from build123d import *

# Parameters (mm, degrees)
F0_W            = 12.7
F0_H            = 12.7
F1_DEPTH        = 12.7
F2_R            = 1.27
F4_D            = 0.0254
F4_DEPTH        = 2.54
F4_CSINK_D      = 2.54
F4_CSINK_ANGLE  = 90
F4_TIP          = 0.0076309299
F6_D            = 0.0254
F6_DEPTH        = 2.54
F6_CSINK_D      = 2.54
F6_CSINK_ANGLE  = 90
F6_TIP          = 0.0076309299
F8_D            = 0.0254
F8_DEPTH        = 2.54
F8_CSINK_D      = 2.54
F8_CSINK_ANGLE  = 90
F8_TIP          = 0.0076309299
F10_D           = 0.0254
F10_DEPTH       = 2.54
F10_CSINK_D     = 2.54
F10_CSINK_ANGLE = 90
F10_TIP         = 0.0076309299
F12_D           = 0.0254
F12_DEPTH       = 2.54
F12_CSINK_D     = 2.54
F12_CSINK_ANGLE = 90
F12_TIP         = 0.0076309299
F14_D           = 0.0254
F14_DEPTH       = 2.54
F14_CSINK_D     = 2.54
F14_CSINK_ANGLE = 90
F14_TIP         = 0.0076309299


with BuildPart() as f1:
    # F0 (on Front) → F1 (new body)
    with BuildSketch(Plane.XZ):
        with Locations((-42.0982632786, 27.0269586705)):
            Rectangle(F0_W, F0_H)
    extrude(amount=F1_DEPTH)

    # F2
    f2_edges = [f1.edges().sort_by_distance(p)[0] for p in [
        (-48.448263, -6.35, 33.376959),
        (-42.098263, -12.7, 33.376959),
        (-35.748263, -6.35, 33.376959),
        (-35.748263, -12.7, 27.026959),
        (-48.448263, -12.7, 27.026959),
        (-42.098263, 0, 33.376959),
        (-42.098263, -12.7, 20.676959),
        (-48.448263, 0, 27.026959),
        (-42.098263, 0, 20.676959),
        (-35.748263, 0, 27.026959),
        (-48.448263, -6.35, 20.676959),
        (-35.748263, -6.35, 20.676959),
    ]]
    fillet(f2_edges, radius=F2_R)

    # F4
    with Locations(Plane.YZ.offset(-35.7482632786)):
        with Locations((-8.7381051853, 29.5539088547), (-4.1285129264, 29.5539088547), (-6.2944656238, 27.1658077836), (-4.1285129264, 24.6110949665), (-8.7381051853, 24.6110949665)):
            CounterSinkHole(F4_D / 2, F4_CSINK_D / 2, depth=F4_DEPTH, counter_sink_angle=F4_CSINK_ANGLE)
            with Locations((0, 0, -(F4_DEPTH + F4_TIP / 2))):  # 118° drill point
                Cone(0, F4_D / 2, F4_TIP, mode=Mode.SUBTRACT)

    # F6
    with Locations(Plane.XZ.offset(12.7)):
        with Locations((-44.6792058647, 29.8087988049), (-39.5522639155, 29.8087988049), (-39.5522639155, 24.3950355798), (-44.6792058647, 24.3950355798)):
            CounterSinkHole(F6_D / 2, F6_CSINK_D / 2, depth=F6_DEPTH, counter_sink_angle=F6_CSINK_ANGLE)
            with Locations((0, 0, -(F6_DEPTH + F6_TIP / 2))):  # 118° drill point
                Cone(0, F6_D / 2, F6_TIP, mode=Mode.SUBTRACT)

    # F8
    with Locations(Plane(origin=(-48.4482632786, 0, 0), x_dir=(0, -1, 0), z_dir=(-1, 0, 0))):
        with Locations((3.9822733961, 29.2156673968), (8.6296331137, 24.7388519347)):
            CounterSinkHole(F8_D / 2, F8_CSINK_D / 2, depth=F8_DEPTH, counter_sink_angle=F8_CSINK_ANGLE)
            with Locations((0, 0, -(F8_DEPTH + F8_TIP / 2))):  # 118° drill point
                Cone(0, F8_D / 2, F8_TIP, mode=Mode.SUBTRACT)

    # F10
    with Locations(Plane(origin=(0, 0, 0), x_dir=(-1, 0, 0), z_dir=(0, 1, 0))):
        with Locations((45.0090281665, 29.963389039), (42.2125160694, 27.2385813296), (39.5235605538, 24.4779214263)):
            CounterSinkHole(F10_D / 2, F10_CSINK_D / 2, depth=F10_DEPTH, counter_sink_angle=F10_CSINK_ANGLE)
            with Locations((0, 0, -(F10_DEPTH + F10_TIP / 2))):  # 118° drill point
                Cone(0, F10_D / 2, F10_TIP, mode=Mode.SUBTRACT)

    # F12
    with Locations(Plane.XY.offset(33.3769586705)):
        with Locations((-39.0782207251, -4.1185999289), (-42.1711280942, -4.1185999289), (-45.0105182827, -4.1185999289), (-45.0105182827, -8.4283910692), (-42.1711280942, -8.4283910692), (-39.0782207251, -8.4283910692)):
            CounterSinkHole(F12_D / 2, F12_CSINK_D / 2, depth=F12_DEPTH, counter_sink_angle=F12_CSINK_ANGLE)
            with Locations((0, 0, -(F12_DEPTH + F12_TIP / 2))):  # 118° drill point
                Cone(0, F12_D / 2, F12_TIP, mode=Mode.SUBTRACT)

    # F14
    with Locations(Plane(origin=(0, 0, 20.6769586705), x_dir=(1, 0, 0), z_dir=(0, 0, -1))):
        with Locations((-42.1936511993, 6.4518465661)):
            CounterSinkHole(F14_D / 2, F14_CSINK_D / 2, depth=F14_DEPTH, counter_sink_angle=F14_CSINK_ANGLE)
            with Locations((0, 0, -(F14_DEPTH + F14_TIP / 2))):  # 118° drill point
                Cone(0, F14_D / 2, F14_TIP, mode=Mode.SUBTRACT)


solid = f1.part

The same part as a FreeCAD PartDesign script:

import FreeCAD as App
import Part
import Sketcher
Q = App.Units.Quantity


def add_polygon(sketch, points):
    """Adds a closed chain of lines whose ends are joined by coincident constraints."""
    first, n = sketch.GeometryCount, len(points)
    for a, b in zip(points, points[1:] + points[:1]):
        sketch.addGeometry(Part.LineSegment(App.Vector(*a, 0), App.Vector(*b, 0)), False)
    for i in range(n):
        sketch.addConstraint(Sketcher.Constraint("Coincident", first + i, 2, first + (i + 1) % n, 1))

doc = App.newDocument("Part")
body = doc.addObject("PartDesign::Body", "Body")

# Sketch on XZ plane
sketch1 = doc.addObject("Sketcher::SketchObject", "Sketch")
body.addObject(sketch1)
sketch1.AttachmentSupport = (doc.XZ_Plane, [""])
sketch1.MapMode = "FlatFace"
add_polygon(sketch1, [(-48, 33), (-48, 21), (-36, 21), (-36, 33)])  # lines 0-3
sketch1.addConstraint([
    Sketcher.Constraint("Vertical", 0),
    Sketcher.Constraint("Horizontal", 1),
    Sketcher.Constraint("Vertical", 2),
    Sketcher.Constraint("Horizontal", 3),
    Sketcher.Constraint("Equal", 3, 0),
    Sketcher.Constraint("DistanceX", 1, 1, 1, 2, Q("0.5 in")),
    Sketcher.Constraint("DistanceY", -1, 1, 0, 2, Q("20.676959 mm")),
    Sketcher.Constraint("DistanceX", 0, 2, -1, 1, Q("48.448263 mm")),
])
pad1 = doc.addObject("PartDesign::Pad", "Pad")
body.addObject(pad1)
pad1.Profile = sketch1
pad1.Length = Q("0.5 in")
doc.recompute()

fillet = doc.addObject("PartDesign::Fillet", "Fillet")
body.addObject(fillet)
fillet.Base = (pad1, ["Edge1"])
fillet.UseAllEdges = True
fillet.Radius = Q("0.05 in")

# Sketch on YZ plane
sketch2 = doc.addObject("Sketcher::SketchObject", "Sketch001")
body.addObject(sketch2)
sketch2.AttachmentSupport = (doc.YZ_Plane, [""])
sketch2.MapMode = "FlatFace"
sketch2.AttachmentOffset = App.Placement(App.Vector(0, 0, -35.748263), App.Rotation())
sketch2.addGeometry([
    Part.Circle(App.Vector(-8.738, 29.554, 0), App.Vector(0, 0, 1), 0.013),  # 0
    Part.Circle(App.Vector(-4.129, 29.554, 0), App.Vector(0, 0, 1), 0.013),  # 1
    Part.Circle(App.Vector(-6.294, 27.166, 0), App.Vector(0, 0, 1), 0.013),  # 2
    Part.Circle(App.Vector(-4.129, 24.611, 0), App.Vector(0, 0, 1), 0.013),  # 3
    Part.Circle(App.Vector(-8.738, 24.611, 0), App.Vector(0, 0, 1), 0.013),  # 4
], False)
sketch2.addConstraint([
    Sketcher.Constraint("Equal", 0, 1),
    Sketcher.Constraint("Equal", 1, 2),
    Sketcher.Constraint("Equal", 2, 3),
    Sketcher.Constraint("Equal", 3, 4),
    Sketcher.Constraint("Horizontal", 0, 3, 1, 3),
    Sketcher.Constraint("Horizontal", 3, 3, 4, 3),
    Sketcher.Constraint("Vertical", 1, 3, 3, 3),
    Sketcher.Constraint("Vertical", 0, 3, 4, 3),
    Sketcher.Constraint("Diameter", 0, Q("0.001 in")),
    Sketcher.Constraint("DistanceY", 2, 3, 1, 3, Q("2.388101 mm")),
    Sketcher.Constraint("DistanceY", -1, 1, 0, 3, Q("29.553909 mm")),
    Sketcher.Constraint("DistanceX", 0, 3, 2, 3, Q("2.44364 mm")),
    Sketcher.Constraint("DistanceX", 0, 3, -1, 1, Q("8.738105 mm")),
    Sketcher.Constraint("DistanceX", 1, 3, -1, 1, Q("4.128513 mm")),
    Sketcher.Constraint("DistanceY", -1, 1, 3, 3, Q("24.611095 mm")),
])
doc.recompute()
hole = doc.addObject("PartDesign::Hole", "Hole")
body.addObject(hole)
hole.Profile = sketch2
hole.ThreadType = "None"
hole.Diameter = Q("0.001 in")
hole.DepthType = "Dimension"
hole.Depth = Q("0.1 in")
hole.DrillPoint = "Angled"
hole.DrillPointAngle = 118
hole.HoleCutType = "Countersink"
hole.HoleCutDiameter = Q("0.1 in")
hole.HoleCutCountersinkAngle = 90

# Sketch on XZ plane
sketch3 = doc.addObject("Sketcher::SketchObject", "Sketch002")
body.addObject(sketch3)
sketch3.AttachmentSupport = (doc.XZ_Plane, [""])
sketch3.MapMode = "FlatFace"
sketch3.AttachmentOffset = App.Placement(App.Vector(0, 0, 0.5 * 25.4), App.Rotation())
sketch3.addGeometry([
    Part.Circle(App.Vector(-44.679, 29.809, 0), App.Vector(0, 0, 1), 0.013),
    Part.Circle(App.Vector(-39.552, 29.809, 0), App.Vector(0, 0, 1), 0.013),
    Part.Circle(App.Vector(-39.552, 24.395, 0), App.Vector(0, 0, 1), 0.013),
    Part.Circle(App.Vector(-44.679, 24.395, 0), App.Vector(0, 0, 1), 0.013),
], False)
sketch3.addConstraint([
    Sketcher.Constraint("Equal", 0, 1),
    Sketcher.Constraint("Equal", 1, 2),
    Sketcher.Constraint("Equal", 2, 3),
    Sketcher.Constraint("Horizontal", 0, 3, 1, 3),
    Sketcher.Constraint("Horizontal", 2, 3, 3, 3),
    Sketcher.Constraint("Vertical", 1, 3, 2, 3),
    Sketcher.Constraint("Vertical", 0, 3, 3, 3),
    Sketcher.Constraint("Diameter", 0, Q("0.001 in")),
    Sketcher.Constraint("DistanceY", -1, 1, 0, 3, Q("29.808799 mm")),
    Sketcher.Constraint("DistanceX", 0, 3, 1, 3, Q("5.126942 mm")),
    Sketcher.Constraint("DistanceX", 0, 3, -1, 1, Q("44.679206 mm")),
    Sketcher.Constraint("DistanceY", -1, 1, 2, 3, Q("24.395036 mm")),
])
doc.recompute()
hole2 = doc.addObject("PartDesign::Hole", "Hole001")
body.addObject(hole2)
hole2.Profile = sketch3
hole2.ThreadType = "None"
hole2.Diameter = Q("0.001 in")
hole2.DepthType = "Dimension"
hole2.Depth = Q("0.1 in")
hole2.DrillPoint = "Angled"
hole2.DrillPointAngle = 118
hole2.HoleCutType = "Countersink"
hole2.HoleCutDiameter = Q("0.1 in")
hole2.HoleCutCountersinkAngle = 90

# Sketch on YZ plane
sketch4 = doc.addObject("Sketcher::SketchObject", "Sketch003")
body.addObject(sketch4)
sketch4.AttachmentSupport = (doc.YZ_Plane, [""])
sketch4.MapMode = "FlatFace"
sketch4.AttachmentOffset = App.Placement(App.Vector(0, 0, -48.448263), App.Rotation())
sketch4.addGeometry([
    Part.Circle(App.Vector(-3.982, 29.216, 0), App.Vector(0, 0, 1), 0.013),
    Part.Circle(App.Vector(-8.63, 24.739, 0), App.Vector(0, 0, 1), 0.013),
], False)
sketch4.addConstraint([
    Sketcher.Constraint("Equal", 0, 1),
    Sketcher.Constraint("Diameter", 0, Q("0.001 in")),
    Sketcher.Constraint("DistanceY", -1, 1, 1, 3, Q("24.738852 mm")),
    Sketcher.Constraint("DistanceX", 1, 3, 0, 3, Q("4.64736 mm")),
    Sketcher.Constraint("DistanceX", 0, 3, -1, 1, Q("3.982273 mm")),
    Sketcher.Constraint("DistanceY", -1, 1, 0, 3, Q("29.215667 mm")),
])
doc.recompute()
hole3 = doc.addObject("PartDesign::Hole", "Hole002")
body.addObject(hole3)
hole3.Profile = sketch4
hole3.ThreadType = "None"
hole3.Diameter = Q("0.001 in")
hole3.DepthType = "Dimension"
hole3.Depth = Q("0.1 in")
hole3.DrillPoint = "Angled"
hole3.DrillPointAngle = 118
hole3.HoleCutType = "Countersink"
hole3.HoleCutDiameter = Q("0.1 in")
hole3.HoleCutCountersinkAngle = 90
hole3.Reversed = True

# Sketch on XZ plane
sketch5 = doc.addObject("Sketcher::SketchObject", "Sketch004")
body.addObject(sketch5)
sketch5.AttachmentSupport = (doc.XZ_Plane, [""])
sketch5.MapMode = "FlatFace"
sketch5.addGeometry([
    Part.Circle(App.Vector(-45.009, 29.963, 0), App.Vector(0, 0, 1), 0.013),
    Part.Circle(App.Vector(-42.213, 27.239, 0), App.Vector(0, 0, 1), 0.013),
    Part.Circle(App.Vector(-39.524, 24.478, 0), App.Vector(0, 0, 1), 0.013),
], False)
sketch5.addConstraint([
    Sketcher.Constraint("Equal", 0, 1),
    Sketcher.Constraint("Equal", 1, 2),
    Sketcher.Constraint("Diameter", 0, Q("0.001 in")),
    Sketcher.Constraint("DistanceX", 0, 3, -1, 1, Q("45.009028 mm")),
    Sketcher.Constraint("DistanceY", -1, 1, 0, 3, Q("29.963389 mm")),
    Sketcher.Constraint("DistanceY", -1, 1, 1, 3, Q("27.238581 mm")),
    Sketcher.Constraint("DistanceX", 2, 3, -1, 1, Q("39.523561 mm")),
    Sketcher.Constraint("DistanceY", -1, 1, 2, 3, Q("24.477921 mm")),
    Sketcher.Constraint("DistanceX", 1, 3, -1, 1, Q("42.212516 mm")),
])
doc.recompute()
hole4 = doc.addObject("PartDesign::Hole", "Hole003")
body.addObject(hole4)
hole4.Profile = sketch5
hole4.ThreadType = "None"
hole4.Diameter = Q("0.001 in")
hole4.DepthType = "Dimension"
hole4.Depth = Q("0.1 in")
hole4.DrillPoint = "Angled"
hole4.DrillPointAngle = 118
hole4.HoleCutType = "Countersink"
hole4.HoleCutDiameter = Q("0.1 in")
hole4.HoleCutCountersinkAngle = 90
hole4.Reversed = True

# Sketch on XY plane
sketch6 = doc.addObject("Sketcher::SketchObject", "Sketch005")
body.addObject(sketch6)
sketch6.AttachmentSupport = (doc.XY_Plane, [""])
sketch6.MapMode = "FlatFace"
sketch6.AttachmentOffset = App.Placement(App.Vector(0, 0, 33.376959), App.Rotation())
sketch6.addGeometry([
    Part.Circle(App.Vector(-39.078, -4.119, 0), App.Vector(0, 0, 1), 0.013),  # 0
    Part.Circle(App.Vector(-42.171, -4.119, 0), App.Vector(0, 0, 1), 0.013),  # 1
    Part.Circle(App.Vector(-45.011, -4.119, 0), App.Vector(0, 0, 1), 0.013),  # 2
    Part.Circle(App.Vector(-45.011, -8.428, 0), App.Vector(0, 0, 1), 0.013),  # 3
    Part.Circle(App.Vector(-42.171, -8.428, 0), App.Vector(0, 0, 1), 0.013),  # 4
    Part.Circle(App.Vector(-39.078, -8.428, 0), App.Vector(0, 0, 1), 0.013),  # 5
], False)
sketch6.addConstraint([
    Sketcher.Constraint("Equal", 0, 1),
    Sketcher.Constraint("Equal", 1, 2),
    Sketcher.Constraint("Equal", 2, 3),
    Sketcher.Constraint("Equal", 3, 4),
    Sketcher.Constraint("Equal", 4, 5),
    Sketcher.Constraint("Horizontal", 0, 3, 1, 3),
    Sketcher.Constraint("Horizontal", 1, 3, 2, 3),
    Sketcher.Constraint("Horizontal", 3, 3, 4, 3),
    Sketcher.Constraint("Horizontal", 4, 3, 5, 3),
    Sketcher.Constraint("Vertical", 2, 3, 3, 3),
    Sketcher.Constraint("Vertical", 1, 3, 4, 3),
    Sketcher.Constraint("Vertical", 0, 3, 5, 3),
    Sketcher.Constraint("Diameter", 0, Q("0.001 in")),
    Sketcher.Constraint("DistanceY", 0, 3, -1, 1, Q("4.1186 mm")),
    Sketcher.Constraint("DistanceX", 0, 3, -1, 1, Q("39.078221 mm")),
    Sketcher.Constraint("DistanceX", 1, 3, -1, 1, Q("42.171128 mm")),
    Sketcher.Constraint("DistanceX", 2, 3, -1, 1, Q("45.010518 mm")),
    Sketcher.Constraint("DistanceY", 3, 3, -1, 1, Q("8.428391 mm")),
])
doc.recompute()
hole5 = doc.addObject("PartDesign::Hole", "Hole004")
body.addObject(hole5)
hole5.Profile = sketch6
hole5.ThreadType = "None"
hole5.Diameter = Q("0.001 in")
hole5.DepthType = "Dimension"
hole5.Depth = Q("0.1 in")
hole5.DrillPoint = "Angled"
hole5.DrillPointAngle = 118
hole5.HoleCutType = "Countersink"
hole5.HoleCutDiameter = Q("0.1 in")
hole5.HoleCutCountersinkAngle = 90

# Sketch on XY plane
sketch7 = doc.addObject("Sketcher::SketchObject", "Sketch006")
body.addObject(sketch7)
sketch7.AttachmentSupport = (doc.XY_Plane, [""])
sketch7.MapMode = "FlatFace"
sketch7.AttachmentOffset = App.Placement(App.Vector(0, 0, 20.676959), App.Rotation())
sketch7.addGeometry(Part.Circle(App.Vector(-42.194, -6.452, 0), App.Vector(0, 0, 1), 0.013), False)
sketch7.addConstraint([
    Sketcher.Constraint("Diameter", 0, Q("0.001 in")),
    Sketcher.Constraint("DistanceX", 0, 3, -1, 1, Q("42.193651 mm")),
    Sketcher.Constraint("DistanceY", 0, 3, -1, 1, Q("6.451847 mm")),
])
doc.recompute()
hole6 = doc.addObject("PartDesign::Hole", "Hole005")
body.addObject(hole6)
hole6.Profile = sketch7
hole6.ThreadType = "None"
hole6.Diameter = Q("0.001 in")
hole6.DepthType = "Dimension"
hole6.Depth = Q("0.1 in")
hole6.DrillPoint = "Angled"
hole6.DrillPointAngle = 118
hole6.HoleCutType = "Countersink"
hole6.HoleCutDiameter = Q("0.1 in")
hole6.HoleCutCountersinkAngle = 90
hole6.Reversed = True

doc.recompute()
